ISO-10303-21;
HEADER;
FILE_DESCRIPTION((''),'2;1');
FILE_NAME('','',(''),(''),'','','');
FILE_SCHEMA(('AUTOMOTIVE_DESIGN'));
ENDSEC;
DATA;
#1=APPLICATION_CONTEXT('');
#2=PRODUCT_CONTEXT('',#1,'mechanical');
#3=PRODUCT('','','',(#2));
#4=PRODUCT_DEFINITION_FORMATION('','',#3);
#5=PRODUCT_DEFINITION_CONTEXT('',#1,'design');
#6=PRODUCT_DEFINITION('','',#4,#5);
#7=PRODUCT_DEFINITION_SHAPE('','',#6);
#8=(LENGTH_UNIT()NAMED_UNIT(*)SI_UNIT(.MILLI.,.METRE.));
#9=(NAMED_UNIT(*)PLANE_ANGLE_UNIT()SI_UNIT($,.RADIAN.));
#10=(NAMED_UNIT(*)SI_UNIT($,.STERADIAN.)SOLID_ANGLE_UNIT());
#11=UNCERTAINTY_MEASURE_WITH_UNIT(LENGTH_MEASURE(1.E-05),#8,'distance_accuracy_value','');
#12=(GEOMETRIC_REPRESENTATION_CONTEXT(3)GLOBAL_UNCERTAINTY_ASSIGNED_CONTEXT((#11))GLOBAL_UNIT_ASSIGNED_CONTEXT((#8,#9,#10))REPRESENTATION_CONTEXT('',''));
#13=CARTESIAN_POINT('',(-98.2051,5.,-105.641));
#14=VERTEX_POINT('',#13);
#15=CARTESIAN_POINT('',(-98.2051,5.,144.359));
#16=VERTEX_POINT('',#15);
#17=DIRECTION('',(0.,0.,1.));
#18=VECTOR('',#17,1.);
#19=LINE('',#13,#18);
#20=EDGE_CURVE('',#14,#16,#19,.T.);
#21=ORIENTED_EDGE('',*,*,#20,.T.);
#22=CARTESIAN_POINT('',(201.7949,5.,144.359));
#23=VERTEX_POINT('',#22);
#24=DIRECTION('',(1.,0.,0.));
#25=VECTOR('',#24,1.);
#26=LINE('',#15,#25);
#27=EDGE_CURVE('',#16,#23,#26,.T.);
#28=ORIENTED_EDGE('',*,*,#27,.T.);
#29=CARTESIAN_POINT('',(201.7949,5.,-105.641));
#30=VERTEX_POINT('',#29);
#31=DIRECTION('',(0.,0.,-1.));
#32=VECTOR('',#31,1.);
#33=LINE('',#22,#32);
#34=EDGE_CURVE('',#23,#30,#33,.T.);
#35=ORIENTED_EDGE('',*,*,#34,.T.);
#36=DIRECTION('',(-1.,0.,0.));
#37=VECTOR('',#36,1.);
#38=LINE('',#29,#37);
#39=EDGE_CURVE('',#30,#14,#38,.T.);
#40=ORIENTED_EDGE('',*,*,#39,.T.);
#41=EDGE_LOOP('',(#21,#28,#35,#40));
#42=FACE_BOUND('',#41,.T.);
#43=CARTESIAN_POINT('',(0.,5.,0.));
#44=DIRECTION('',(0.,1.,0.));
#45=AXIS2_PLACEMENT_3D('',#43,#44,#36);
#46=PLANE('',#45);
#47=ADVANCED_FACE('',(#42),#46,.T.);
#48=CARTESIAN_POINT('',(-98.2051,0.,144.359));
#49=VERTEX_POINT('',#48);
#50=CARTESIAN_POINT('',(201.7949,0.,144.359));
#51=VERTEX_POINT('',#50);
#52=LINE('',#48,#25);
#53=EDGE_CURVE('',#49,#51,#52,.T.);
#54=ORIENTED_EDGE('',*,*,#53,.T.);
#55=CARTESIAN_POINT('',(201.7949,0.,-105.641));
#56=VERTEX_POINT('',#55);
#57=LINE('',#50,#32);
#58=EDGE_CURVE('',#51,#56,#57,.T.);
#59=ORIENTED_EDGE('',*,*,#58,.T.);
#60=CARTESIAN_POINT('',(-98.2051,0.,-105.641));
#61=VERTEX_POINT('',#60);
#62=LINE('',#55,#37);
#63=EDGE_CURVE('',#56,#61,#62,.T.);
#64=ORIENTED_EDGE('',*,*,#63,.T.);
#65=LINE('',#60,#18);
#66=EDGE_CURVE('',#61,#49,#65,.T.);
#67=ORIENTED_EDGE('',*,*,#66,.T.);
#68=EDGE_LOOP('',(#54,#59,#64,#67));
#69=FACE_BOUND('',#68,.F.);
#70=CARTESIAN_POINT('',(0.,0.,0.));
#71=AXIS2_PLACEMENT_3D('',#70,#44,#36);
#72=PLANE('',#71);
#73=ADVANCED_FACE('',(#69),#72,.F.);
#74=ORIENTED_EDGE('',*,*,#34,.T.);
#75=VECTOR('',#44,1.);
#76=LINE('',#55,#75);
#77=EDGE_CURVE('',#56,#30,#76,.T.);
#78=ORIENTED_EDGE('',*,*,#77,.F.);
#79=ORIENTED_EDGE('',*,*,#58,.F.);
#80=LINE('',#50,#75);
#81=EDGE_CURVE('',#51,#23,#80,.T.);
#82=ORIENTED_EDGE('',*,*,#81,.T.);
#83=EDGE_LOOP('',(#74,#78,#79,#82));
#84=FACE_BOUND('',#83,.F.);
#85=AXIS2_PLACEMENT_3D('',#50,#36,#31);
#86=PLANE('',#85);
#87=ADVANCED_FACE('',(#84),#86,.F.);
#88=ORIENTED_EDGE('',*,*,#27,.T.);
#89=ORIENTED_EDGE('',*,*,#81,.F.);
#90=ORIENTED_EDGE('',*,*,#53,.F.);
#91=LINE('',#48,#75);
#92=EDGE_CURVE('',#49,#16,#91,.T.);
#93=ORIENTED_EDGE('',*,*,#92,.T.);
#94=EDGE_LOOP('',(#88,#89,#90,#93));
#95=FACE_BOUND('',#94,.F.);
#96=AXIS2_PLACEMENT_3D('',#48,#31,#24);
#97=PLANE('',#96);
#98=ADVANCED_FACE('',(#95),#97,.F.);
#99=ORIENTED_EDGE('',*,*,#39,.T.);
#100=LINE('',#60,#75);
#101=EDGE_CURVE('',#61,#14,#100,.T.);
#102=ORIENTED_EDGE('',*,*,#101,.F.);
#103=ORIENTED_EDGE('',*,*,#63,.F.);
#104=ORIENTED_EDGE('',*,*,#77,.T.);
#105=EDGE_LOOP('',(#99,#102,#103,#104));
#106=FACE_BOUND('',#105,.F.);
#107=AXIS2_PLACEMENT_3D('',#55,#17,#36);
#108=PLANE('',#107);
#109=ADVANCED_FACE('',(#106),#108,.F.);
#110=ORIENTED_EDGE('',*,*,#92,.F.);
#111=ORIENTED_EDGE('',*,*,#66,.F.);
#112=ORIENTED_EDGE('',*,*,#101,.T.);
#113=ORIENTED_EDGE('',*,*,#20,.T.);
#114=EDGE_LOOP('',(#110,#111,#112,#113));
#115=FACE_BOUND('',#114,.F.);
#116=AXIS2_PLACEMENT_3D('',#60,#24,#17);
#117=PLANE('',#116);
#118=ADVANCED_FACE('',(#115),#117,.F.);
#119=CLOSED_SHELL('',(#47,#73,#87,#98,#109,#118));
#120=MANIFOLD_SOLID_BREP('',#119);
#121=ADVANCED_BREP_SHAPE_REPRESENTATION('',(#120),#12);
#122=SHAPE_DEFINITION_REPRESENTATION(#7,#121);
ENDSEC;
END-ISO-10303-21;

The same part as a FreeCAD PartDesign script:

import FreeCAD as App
import Part
import Sketcher
from FreeCAD import Vector
Q = App.Units.Quantity


def add_polygon(sketch, points):
    """Adds a closed chain of lines whose ends are joined by coincident constraints."""
    first, n = sketch.GeometryCount, len(points)
    for a, b in zip(points, points[1:] + points[:1]):
        sketch.addGeometry(Part.LineSegment(App.Vector(*a, 0), App.Vector(*b, 0)), False)
    for i in range(n):
        sketch.addConstraint(Sketcher.Constraint("Coincident", first + i, 2, first + (i + 1) % n, 1))

doc = App.newDocument("Part")
body = doc.addObject("PartDesign::Body", "Body")

# Sketch on XZ plane
sketch1 = body.newObject("Sketcher::SketchObject", "Sketch")
sketch1.AttachmentSupport = (doc.getObject("XZ_Plane"), [""])
sketch1.MapMode = "FlatFace"
add_polygon(sketch1, [(-98, -106), (-98, 144), (202, 144), (202, -106)])  # lines 0-3
sketch1.addConstraint([
    Sketcher.Constraint("Vertical", 0),
    Sketcher.Constraint("Horizontal", 1),
    Sketcher.Constraint("Vertical", 2),
    Sketcher.Constraint("Horizontal", 3),
    Sketcher.Constraint("DistanceX", 1, 1, 1, 2, Q("300 mm")),
    Sketcher.Constraint("DistanceY", 0, 1, 0, 2, Q("250 mm")),
    Sketcher.Constraint("DistanceX", 0, 2, -1, 1, Q("98.205 mm")),
    Sketcher.Constraint("DistanceY", -1, 1, 0, 2, Q("144.359 mm")),
])
pad1 = body.newObject("PartDesign::Pad", "Pad")
pad1.Profile = sketch1
pad1.Length = 5
pad1.Reversed = True

doc.recompute()
